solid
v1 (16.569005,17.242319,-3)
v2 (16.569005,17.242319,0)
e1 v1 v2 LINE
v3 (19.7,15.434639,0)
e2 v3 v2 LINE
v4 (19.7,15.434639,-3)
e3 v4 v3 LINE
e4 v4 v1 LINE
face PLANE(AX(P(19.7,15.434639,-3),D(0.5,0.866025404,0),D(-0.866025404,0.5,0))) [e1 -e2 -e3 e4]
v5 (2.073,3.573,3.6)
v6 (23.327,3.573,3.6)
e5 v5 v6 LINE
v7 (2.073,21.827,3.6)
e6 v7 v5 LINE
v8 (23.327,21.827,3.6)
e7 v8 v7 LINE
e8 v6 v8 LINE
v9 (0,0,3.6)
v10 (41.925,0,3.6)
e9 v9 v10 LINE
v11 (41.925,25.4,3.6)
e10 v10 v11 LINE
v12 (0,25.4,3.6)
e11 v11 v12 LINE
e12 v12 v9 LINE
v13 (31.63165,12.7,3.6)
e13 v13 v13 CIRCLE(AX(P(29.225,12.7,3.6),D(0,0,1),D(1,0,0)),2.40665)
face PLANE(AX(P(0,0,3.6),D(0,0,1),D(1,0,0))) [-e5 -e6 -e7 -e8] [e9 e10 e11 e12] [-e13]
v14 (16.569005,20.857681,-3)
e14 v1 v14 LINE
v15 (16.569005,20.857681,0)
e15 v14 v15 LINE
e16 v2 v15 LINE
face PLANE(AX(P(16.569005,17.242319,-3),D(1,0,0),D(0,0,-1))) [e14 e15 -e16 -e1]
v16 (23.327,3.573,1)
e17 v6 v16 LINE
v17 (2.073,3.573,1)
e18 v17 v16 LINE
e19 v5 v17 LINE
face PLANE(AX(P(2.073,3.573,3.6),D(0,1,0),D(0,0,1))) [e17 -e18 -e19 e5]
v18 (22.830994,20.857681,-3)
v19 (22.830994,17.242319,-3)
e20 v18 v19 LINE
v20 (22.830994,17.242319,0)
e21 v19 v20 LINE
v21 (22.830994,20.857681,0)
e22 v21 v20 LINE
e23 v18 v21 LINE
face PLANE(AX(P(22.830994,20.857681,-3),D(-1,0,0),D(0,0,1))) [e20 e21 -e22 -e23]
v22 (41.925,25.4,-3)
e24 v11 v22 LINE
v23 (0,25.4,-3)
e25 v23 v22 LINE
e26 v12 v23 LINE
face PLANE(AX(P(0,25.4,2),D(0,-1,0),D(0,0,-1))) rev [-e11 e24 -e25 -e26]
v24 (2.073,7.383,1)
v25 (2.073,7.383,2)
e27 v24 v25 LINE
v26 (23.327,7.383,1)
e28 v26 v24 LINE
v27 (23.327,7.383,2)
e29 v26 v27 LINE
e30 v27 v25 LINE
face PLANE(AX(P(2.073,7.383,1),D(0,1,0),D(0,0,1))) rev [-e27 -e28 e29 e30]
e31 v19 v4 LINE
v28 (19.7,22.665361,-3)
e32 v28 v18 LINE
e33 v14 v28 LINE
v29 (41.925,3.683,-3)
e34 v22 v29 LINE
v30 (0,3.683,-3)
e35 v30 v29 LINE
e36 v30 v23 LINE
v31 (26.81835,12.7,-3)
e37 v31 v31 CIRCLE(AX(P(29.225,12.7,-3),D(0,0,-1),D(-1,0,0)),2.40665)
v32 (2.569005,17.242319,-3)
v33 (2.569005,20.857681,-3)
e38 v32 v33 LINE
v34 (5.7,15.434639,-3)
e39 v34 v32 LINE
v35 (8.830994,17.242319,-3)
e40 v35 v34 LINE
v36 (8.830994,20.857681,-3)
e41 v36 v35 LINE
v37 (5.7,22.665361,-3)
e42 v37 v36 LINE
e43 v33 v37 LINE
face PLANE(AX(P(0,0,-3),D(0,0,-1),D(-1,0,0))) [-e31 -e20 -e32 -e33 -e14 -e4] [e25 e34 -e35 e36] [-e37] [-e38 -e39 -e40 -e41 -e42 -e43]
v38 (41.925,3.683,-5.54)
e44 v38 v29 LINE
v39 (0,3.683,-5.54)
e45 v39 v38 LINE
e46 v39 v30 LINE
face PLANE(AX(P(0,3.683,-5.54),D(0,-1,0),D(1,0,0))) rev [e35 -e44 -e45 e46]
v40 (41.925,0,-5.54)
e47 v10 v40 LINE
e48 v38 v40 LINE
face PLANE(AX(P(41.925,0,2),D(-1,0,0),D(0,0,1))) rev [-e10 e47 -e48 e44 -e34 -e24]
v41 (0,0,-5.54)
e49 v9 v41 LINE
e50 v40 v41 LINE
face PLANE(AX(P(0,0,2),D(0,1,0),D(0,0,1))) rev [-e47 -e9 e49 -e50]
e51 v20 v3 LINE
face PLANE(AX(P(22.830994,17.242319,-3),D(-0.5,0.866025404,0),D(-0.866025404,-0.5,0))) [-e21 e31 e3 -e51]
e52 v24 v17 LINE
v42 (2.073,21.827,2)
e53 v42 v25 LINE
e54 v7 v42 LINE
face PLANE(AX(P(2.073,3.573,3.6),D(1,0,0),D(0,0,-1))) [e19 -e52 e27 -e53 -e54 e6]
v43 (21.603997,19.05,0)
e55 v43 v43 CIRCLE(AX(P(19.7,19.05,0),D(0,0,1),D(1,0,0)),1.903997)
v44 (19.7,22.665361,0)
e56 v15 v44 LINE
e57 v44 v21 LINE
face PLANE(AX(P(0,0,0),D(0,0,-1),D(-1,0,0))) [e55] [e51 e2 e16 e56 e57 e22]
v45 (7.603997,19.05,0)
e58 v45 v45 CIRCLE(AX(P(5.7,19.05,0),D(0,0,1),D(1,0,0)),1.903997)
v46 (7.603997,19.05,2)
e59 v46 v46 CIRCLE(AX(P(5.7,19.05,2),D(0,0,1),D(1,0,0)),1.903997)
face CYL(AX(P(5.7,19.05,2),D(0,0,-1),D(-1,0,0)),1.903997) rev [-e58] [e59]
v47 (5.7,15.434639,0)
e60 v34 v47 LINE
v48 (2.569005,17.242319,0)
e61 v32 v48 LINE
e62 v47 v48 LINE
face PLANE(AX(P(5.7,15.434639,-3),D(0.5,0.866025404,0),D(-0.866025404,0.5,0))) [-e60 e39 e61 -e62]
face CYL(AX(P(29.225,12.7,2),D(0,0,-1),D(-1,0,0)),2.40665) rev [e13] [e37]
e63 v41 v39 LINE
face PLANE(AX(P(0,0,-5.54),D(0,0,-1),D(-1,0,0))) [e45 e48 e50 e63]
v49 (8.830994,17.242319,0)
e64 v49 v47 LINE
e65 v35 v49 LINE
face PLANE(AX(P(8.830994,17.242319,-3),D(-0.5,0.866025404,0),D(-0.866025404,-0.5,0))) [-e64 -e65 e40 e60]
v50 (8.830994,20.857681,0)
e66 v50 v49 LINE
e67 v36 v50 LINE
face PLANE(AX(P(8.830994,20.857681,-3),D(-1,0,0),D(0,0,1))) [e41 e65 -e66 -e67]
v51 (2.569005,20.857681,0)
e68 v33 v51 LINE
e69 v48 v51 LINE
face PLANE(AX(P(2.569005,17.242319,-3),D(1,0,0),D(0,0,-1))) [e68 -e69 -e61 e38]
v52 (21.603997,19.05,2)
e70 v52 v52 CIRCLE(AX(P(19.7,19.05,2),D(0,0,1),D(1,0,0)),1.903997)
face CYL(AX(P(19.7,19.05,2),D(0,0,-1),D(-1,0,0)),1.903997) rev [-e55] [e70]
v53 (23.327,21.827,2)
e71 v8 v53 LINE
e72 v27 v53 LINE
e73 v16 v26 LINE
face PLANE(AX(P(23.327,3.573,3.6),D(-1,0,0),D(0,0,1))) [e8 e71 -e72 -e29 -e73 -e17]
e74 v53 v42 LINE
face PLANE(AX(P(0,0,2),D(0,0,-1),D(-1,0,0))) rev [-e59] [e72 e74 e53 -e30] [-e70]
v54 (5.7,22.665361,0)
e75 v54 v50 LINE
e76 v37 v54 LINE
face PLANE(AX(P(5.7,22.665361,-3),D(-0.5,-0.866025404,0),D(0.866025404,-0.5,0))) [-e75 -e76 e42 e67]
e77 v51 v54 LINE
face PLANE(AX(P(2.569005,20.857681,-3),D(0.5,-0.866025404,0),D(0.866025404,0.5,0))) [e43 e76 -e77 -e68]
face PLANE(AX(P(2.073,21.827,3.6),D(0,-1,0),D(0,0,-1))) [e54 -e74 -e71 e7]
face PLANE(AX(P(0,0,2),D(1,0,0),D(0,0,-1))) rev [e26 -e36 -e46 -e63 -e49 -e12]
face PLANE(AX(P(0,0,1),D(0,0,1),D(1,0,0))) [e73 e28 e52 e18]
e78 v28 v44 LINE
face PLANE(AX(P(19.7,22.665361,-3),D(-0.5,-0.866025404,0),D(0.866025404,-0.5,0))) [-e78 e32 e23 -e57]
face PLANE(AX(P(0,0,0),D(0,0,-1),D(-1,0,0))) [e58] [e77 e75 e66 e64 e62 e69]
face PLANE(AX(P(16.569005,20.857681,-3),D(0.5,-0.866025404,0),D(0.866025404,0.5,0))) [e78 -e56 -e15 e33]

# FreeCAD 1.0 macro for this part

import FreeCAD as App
import Part
import Sketcher
from FreeCAD import Vector
Q = App.Units.Quantity


def add_polygon(sketch, points):
    """Adds a closed chain of lines whose ends are joined by coincident constraints."""
    first, n = sketch.GeometryCount, len(points)
    for a, b in zip(points, points[1:] + points[:1]):
        sketch.addGeometry(Part.LineSegment(App.Vector(*a, 0), App.Vector(*b, 0)), False)
    for i in range(n):
        sketch.addConstraint(Sketcher.Constraint("Coincident", first + i, 2, first + (i + 1) % n, 1))

doc = App.newDocument("Part")
body = doc.addObject("PartDesign::Body", "Body")

# Sketch on XY plane
sketch1 = body.newObject("Sketcher::SketchObject", "Sketch")
sketch1.AttachmentSupport = (doc.getObject("XY_Plane"), [""])
sketch1.MapMode = "FlatFace"
add_polygon(sketch1, [(0, 25.4), (0, 0), (41.9, 0), (41.9, 25.4)])  # lines 0-3
sketch1.addGeometry(Part.Circle(Vector(29.2, 12.7, 0), Vector(0, 0, 1), 2.4), False)  # 4
sketch1.addGeometry(Part.Circle(Vector(5.7, 19.1, 0), Vector(0, 0, 1), 1.9), False)  # 5
sketch1.addGeometry(Part.Circle(Vector(19.7, 19.1, 0), Vector(0, 0, 1), 1.9), False)  # 6
sketch1.addConstraint([
    Sketcher.Constraint("Vertical", 0),
    Sketcher.Constraint("Horizontal", 1),
    Sketcher.Constraint("Vertical", 2),
    Sketcher.Constraint("Horizontal", 3),
    Sketcher.Constraint("Coincident", 0, 2, -1, 1),
    Sketcher.Constraint("Equal", 5, 6),
    Sketcher.Constraint("Horizontal", 5, 3, 6, 3),
    Sketcher.Constraint("DistanceY", 0, 2, 0, 1, Q("25.4 mm")),
    Sketcher.Constraint("DistanceX", 5, 3, 6, 3, Q("14 mm")),
    Sketcher.Constraint("Diameter", 4, Q("4.8133 mm")),
    Sketcher.Constraint("DistanceY", -1, 1, 4, 3, Q("12.7 mm")),
    Sketcher.Constraint("DistanceX", -1, 1, 5, 3, Q("5.7 mm")),
    Sketcher.Constraint("DistanceX", 4, 3, 1, 2, Q("12.7 mm")),
    Sketcher.Constraint("DistanceX", 1, 1, 1, 2, Q("41.925 mm")),
    Sketcher.Constraint("DistanceY", -1, 1, 5, 3, Q("19.05 mm")),
    Sketcher.Constraint("Diameter", 5, Q("3.807993 mm")),
])
pad1 = body.newObject("PartDesign::Pad", "Pad")
pad1.Profile = sketch1
pad1.Length = 2

# Sketch on XY plane
sketch2 = body.newObject("Sketcher::SketchObject", "Sketch001")
sketch2.AttachmentSupport = (doc.getObject("XY_Plane"), [""])
sketch2.MapMode = "FlatFace"
sketch2.AttachmentOffset = App.Placement(Vector(0, 0, 2), App.Rotation())
add_polygon(sketch2, [(0, 25.4), (0, 0), (41.9, 0), (41.9, 25.4)])  # lines 0-3
add_polygon(sketch2, [(23.3, 3.6), (2.1, 3.6), (2.1, 21.8), (23.3, 21.8)])  # lines 4-7
sketch2.addGeometry(Part.Circle(Vector(29.2, 12.7, 0), Vector(0, 0, 1), 2.4), False)  # 8
sketch2.addConstraint([
    Sketcher.Constraint("Vertical", 0),
    Sketcher.Constraint("Horizontal", 1),
    Sketcher.Constraint("Vertical", 2),
    Sketcher.Constraint("Horizontal", 3),
    Sketcher.Constraint("Horizontal", 4),
    Sketcher.Constraint("Vertical", 5),
    Sketcher.Constraint("Horizontal", 6),
    Sketcher.Constraint("Vertical", 7),
    Sketcher.Constraint("Coincident", 0, 2, -1, 1),
    Sketcher.Constraint("DistanceY", 0, 2, 0, 1, Q("25.4 mm")),
    Sketcher.Constraint("Diameter", 8, Q("4.8133 mm")),
    Sketcher.Constraint("DistanceY", -1, 1, 8, 3, Q("12.7 mm")),
    Sketcher.Constraint("DistanceX", 8, 3, 1, 2, Q("12.7 mm")),
    Sketcher.Constraint("DistanceX", 1, 1, 1, 2, Q("41.925 mm")),
    Sketcher.Constraint("DistanceX", 4, 2, 4, 1, Q("21.254 mm")),
    Sketcher.Constraint("DistanceY", 5, 1, 5, 2, Q("18.254 mm")),
    Sketcher.Constraint("DistanceX", -1, 1, 4, 2, Q("2.073 mm")),
    Sketcher.Constraint("DistanceY", -1, 1, 4, 2, Q("3.573 mm")),
])
pad2 = body.newObject("PartDesign::Pad", "Pad001")
pad2.Profile = sketch2
pad2.Length = 1.6

# Sketch on XY plane
sketch3 = body.newObject("Sketcher::SketchObject", "Sketch002")
sketch3.AttachmentSupport = (doc.getObject("XY_Plane"), [""])
sketch3.MapMode = "FlatFace"
sketch3.AttachmentOffset = App.Placement(Vector(0, 0, -3), App.Rotation())
add_polygon(sketch3, [(41.9, 25.4), (41.9, 0), (0, 0), (0, 25.4)])  # lines 0-3
sketch3.addGeometry(Part.Circle(Vector(29.2, 12.7, 0), Vector(0, 0, 1), 2.4), False)  # 4
add_polygon(sketch3, [(16.6, 20.9), (16.6, 17.2), (19.7, 15.4), (22.8, 17.2), (22.8, 20.9), (19.7, 22.7)])  # lines 5-10
add_polygon(sketch3, [(5.7, 22.7), (2.6, 20.9), (2.6, 17.2), (5.7, 15.4), (8.8, 17.2), (8.8, 20.9)])  # lines 11-16
sketch3.addConstraint([
    Sketcher.Constraint("Vertical", 0),
    Sketcher.Constraint("Horizontal", 1),
    Sketcher.Constraint("Vertical", 2),
    Sketcher.Constraint("Horizontal", 3),
    Sketcher.Constraint("Vertical", 5),
    Sketcher.Constraint("Vertical", 8),
    Sketcher.Constraint("Vertical", 12),
    Sketcher.Constraint("Vertical", 15),
    Sketcher.Constraint("Coincident", 1, 2, -1, 1),
    Sketcher.Constraint("Parallel", 6, 9),
    Sketcher.Constraint("Parallel", 7, 10),
    Sketcher.Constraint("Parallel", 10, 11),
    Sketcher.Constraint("Parallel", 9, 13),
    Sketcher.Constraint("Parallel", 11, 14),
    Sketcher.Constraint("Parallel", 13, 16),
    Sketcher.Constraint("Horizontal", 5, 2, 7, 2),
    Sketcher.Constraint("Horizontal", 8, 2, 10, 2),
    Sketcher.Constraint("Horizontal", 10, 2, 11, 2),
    Sketcher.Constraint("Horizontal", 7, 2, 12, 2),
    Sketcher.Constraint("Horizontal", 6, 2, 13, 2),
    Sketcher.Constraint("Horizontal", 12, 2, 14, 2),
    Sketcher.Constraint("Horizontal", 11, 2, 15, 2),
    Sketcher.Constraint("Vertical", 6, 2, 9, 2),
    Sketcher.Constraint("Angle", 6, Q("-30 deg")),
    Sketcher.Constraint("DistanceY", 0, 2, 0, 1, Q("25.4 mm")),
    Sketcher.Constraint("DistanceX", 11, 2, 10, 2, Q("14 mm")),
    Sketcher.Constraint("Diameter", 4, Q("4.8133 mm")),
    Sketcher.Constraint("DistanceY", -1, 1, 4, 3, Q("12.7 mm")),
    Sketcher.Constraint("DistanceX", -1, 1, 6, 2, Q("19.7 mm")),
    Sketcher.Constraint("DistanceX", 4, 3, 0, 2, Q("12.7 mm")),
    Sketcher.Constraint("DistanceX", 1, 2, 1, 1, Q("41.925 mm")),
    Sketcher.Constraint("DistanceY", 5, 2, 5, 1, Q("3.615361 mm")),
    Sketcher.Constraint("Distance", 6, Q("3.615361 mm")),
    Sketcher.Constraint("DistanceY", -1, 1, 5, 2, Q("17.242319 mm")),
])
pad3 = body.newObject("PartDesign::Pad", "Pad002")
pad3.Profile = sketch3
pad3.Length = 3

# Sketch on XY plane
sketch4 = body.newObject("Sketcher::SketchObject", "Sketch003")
sketch4.AttachmentSupport = (doc.getObject("XY_Plane"), [""])
sketch4.MapMode = "FlatFace"
sketch4.AttachmentOffset = App.Placement(Vector(0, 0, -3), App.Rotation())
add_polygon(sketch4, [(41.9, 3.7), (41.9, 0), (0, 0), (0, 3.7)])  # lines 0-3
sketch4.addConstraint([
    Sketcher.Constraint("Vertical", 0),
    Sketcher.Constraint("Horizontal", 1),
    Sketcher.Constraint("Vertical", 2),
    Sketcher.Constraint("Horizontal", 3),
    Sketcher.Constraint("Coincident", 1, 2, -1, 1),
    Sketcher.Constraint("DistanceX", 1, 2, 1, 1, Q("41.925 mm")),
    Sketcher.Constraint("DistanceY", 0, 2, 0, 1, Q("3.683 mm")),
])
pad4 = body.newObject("PartDesign::Pad", "Pad003")
pad4.Profile = sketch4
pad4.Length = 2.54
pad4.Reversed = True

# Sketch on XY plane
sketch5 = body.newObject("Sketcher::SketchObject", "Sketch004")
sketch5.AttachmentSupport = (doc.getObject("XY_Plane"), [""])
sketch5.MapMode = "FlatFace"
sketch5.AttachmentOffset = App.Placement(Vector(0, 0, 2), App.Rotation())
add_polygon(sketch5, [(2.1, 7.4), (2.1, 3.6), (23.3, 3.6), (23.3, 7.4)])  # lines 0-3
sketch5.addConstraint([
    Sketcher.Constraint("Vertical", 0),
    Sketcher.Constraint("Horizontal", 1),
    Sketcher.Constraint("Vertical", 2),
    Sketcher.Constraint("Horizontal", 3),
    Sketcher.Constraint("DistanceY", 0, 2, 0, 1, Q("3.81 mm")),
    Sketcher.Constraint("DistanceX", 1, 1, 1, 2, Q("21.254 mm")),
    Sketcher.Constraint("DistanceX", -1, 1, 0, 2, Q("2.073 mm")),
    Sketcher.Constraint("DistanceY", -1, 1, 0, 2, Q("3.573 mm")),
])
pocket1 = body.newObject("PartDesign::Pocket", "Pocket")
pocket1.Profile = sketch5
pocket1.Length = 1

doc.recompute()
